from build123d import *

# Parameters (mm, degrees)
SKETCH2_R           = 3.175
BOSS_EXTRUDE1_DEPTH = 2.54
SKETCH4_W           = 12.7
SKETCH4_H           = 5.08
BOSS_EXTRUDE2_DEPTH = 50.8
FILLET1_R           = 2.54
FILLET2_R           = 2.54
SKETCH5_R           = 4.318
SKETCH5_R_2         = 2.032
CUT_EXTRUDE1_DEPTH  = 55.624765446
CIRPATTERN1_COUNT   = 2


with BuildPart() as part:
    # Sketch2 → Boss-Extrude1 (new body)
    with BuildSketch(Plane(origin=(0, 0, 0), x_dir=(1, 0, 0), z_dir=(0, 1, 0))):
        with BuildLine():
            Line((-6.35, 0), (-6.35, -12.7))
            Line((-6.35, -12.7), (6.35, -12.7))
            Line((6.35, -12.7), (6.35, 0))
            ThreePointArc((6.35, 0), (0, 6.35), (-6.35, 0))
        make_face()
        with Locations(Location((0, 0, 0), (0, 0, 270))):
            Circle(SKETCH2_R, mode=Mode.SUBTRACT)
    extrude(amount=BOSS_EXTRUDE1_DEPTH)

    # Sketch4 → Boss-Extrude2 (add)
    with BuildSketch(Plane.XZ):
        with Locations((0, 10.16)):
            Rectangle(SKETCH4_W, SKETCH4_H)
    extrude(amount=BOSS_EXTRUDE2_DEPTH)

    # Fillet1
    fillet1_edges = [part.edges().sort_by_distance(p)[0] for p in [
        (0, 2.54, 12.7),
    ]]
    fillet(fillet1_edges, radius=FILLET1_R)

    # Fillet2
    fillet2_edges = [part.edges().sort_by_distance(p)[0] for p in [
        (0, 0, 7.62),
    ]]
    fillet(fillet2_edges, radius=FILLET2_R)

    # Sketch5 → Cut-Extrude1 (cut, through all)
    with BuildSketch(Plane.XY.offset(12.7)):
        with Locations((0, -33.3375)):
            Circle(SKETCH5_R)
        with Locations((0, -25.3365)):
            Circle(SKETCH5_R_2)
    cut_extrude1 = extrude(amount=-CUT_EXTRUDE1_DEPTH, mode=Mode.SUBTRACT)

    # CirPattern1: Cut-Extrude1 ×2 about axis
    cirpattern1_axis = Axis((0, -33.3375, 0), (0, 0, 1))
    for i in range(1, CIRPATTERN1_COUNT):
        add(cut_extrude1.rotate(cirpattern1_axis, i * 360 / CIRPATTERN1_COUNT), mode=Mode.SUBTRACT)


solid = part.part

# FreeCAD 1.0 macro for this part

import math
import FreeCAD as App
import Part
import Sketcher
Q = App.Units.Quantity


def edges_at(feature, points):
    """Names of the edges that pass closest to the given points."""
    edges = feature.Shape.Edges
    near = lambda p: min(range(len(edges)), key=lambda i: edges[i].distToShape(Part.Vertex(*p))[0])
    return sorted({f"Edge{near(p) + 1}" for p in points})

doc = App.newDocument("Part")
params = doc.addObject("Spreadsheet::Sheet", "Params")
for row, (alias, value) in enumerate([
    ("sketch1_diameter", "0.25 in"),
    ("sketch1_radius", "0.25 in"),
    ("pad1_length", "0.1 in"),
    ("sketch2_width", "0.5 in"),
    ("sketch2_height", "0.2 in"),
    ("pad2_length", "2 in"),
    ("fillet_radius", "0.1 in"),
    ("fillet2_radius", "0.1 in"),
    ("sketch3_diameter", "0.34 in"),
    ("sketch3_diameter2", "0.16 in"),
], start=1):
    params.set(f"A{row}", alias)
    params.set(f"B{row}", "=" + value)
    params.setAlias(f"B{row}", alias)

body = doc.addObject("PartDesign::Body", "Body")

# Sketch on XZ plane
sketch1 = doc.addObject("Sketcher::SketchObject", "Sketch")
body.addObject(sketch1)
sketch1.AttachmentSupport = (doc.XZ_Plane, [""])
sketch1.MapMode = "FlatFace"
sketch1.addGeometry(Part.LineSegment(App.Vector(-6.3, 0, 0), App.Vector(-6.3, 12.7, 0)), False)
sketch1.addGeometry(Part.LineSegment(App.Vector(-6.3, 12.7, 0), App.Vector(6.3, 12.7, 0)), False)
sketch1.addGeometry(Part.LineSegment(App.Vector(6.3, 12.7, 0), App.Vector(6.3, 0, 0)), False)
sketch1.addGeometry(Part.ArcOfCircle(Part.Circle(App.Vector(0, 0, 0), App.Vector(0, 0, 1), 6.3), math.radians(180), math.radians(360)), False)
sketch1.addGeometry(Part.Circle(App.Vector(0, 0, 0), App.Vector(0, 0, 1), 3.2), False)
sketch1.addConstraint(Sketcher.Constraint("Coincident", 0, 2, 1, 1))
sketch1.addConstraint(Sketcher.Constraint("Coincident", 1, 2, 2, 1))
sketch1.addConstraint(Sketcher.Constraint("Tangent", 2, 2, 3, 2))
sketch1.addConstraint(Sketcher.Constraint("Tangent", 3, 1, 0, 1))
sketch1.addConstraint(Sketcher.Constraint("Vertical", 0))
sketch1.addConstraint(Sketcher.Constraint("Horizontal", 1))
sketch1.addConstraint(Sketcher.Constraint("Vertical", 2))
sketch1.addConstraint(Sketcher.Constraint("Coincident", 3, 3, -1, 1))
sketch1.addConstraint(Sketcher.Constraint("Coincident", 4, 3, -1, 1))
sketch1.addConstraint(Sketcher.Constraint("Equal", 1, 0))
sketch1.addConstraint(Sketcher.Constraint("Diameter", 4, Q("0.25 in")))
sketch1.addConstraint(Sketcher.Constraint("Radius", 3, Q("0.25 in")))
sketch1.setExpression("Constraints[10]", "Params.sketch1_diameter")
sketch1.setExpression("Constraints[11]", "Params.sketch1_radius")
pad1 = doc.addObject("PartDesign::Pad", "Pad")
body.addObject(pad1)
pad1.Profile = sketch1
pad1.setExpression("Length", "Params.pad1_length")
pad1.Reversed = True

# Sketch on XZ plane
sketch2 = doc.addObject("Sketcher::SketchObject", "Sketch001")
body.addObject(sketch2)
sketch2.AttachmentSupport = (doc.XZ_Plane, [""])
sketch2.MapMode = "FlatFace"
sketch2.addGeometry(Part.LineSegment(App.Vector(-6, 13, 0), App.Vector(-6, 8, 0)), False)
sketch2.addGeometry(Part.LineSegment(App.Vector(-6, 8, 0), App.Vector(6, 8, 0)), False)
sketch2.addGeometry(Part.LineSegment(App.Vector(6, 8, 0), App.Vector(6, 13, 0)), False)
sketch2.addGeometry(Part.LineSegment(App.Vector(6, 13, 0), App.Vector(-6, 13, 0)), False)
sketch2.addConstraint(Sketcher.Constraint("Coincident", 0, 2, 1, 1))
sketch2.addConstraint(Sketcher.Constraint("Coincident", 1, 2, 2, 1))
sketch2.addConstraint(Sketcher.Constraint("Coincident", 2, 2, 3, 1))
sketch2.addConstraint(Sketcher.Constraint("Coincident", 3, 2, 0, 1))
sketch2.addConstraint(Sketcher.Constraint("Vertical", 0))
sketch2.addConstraint(Sketcher.Constraint("Horizontal", 1))
sketch2.addConstraint(Sketcher.Constraint("Vertical", 2))
sketch2.addConstraint(Sketcher.Constraint("Horizontal", 3))
sketch2.addConstraint(Sketcher.Constraint("DistanceX", 1, 1, 1, 2, Q("0.5 in")))
sketch2.addConstraint(Sketcher.Constraint("DistanceY", 0, 2, 0, 1, Q("0.2 in")))
sketch2.addConstraint(Sketcher.Constraint("DistanceY", -1, 1, 0, 2, Q("0.3 in")))
sketch2.addConstraint(Sketcher.Constraint("DistanceX", 0, 2, -1, 1, Q("0.25 in")))
sketch2.setExpression("Constraints[8]", "Params.sketch2_width")
sketch2.setExpression("Constraints[9]", "Params.sketch2_height")
pad2 = doc.addObject("PartDesign::Pad", "Pad001")
body.addObject(pad2)
pad2.Profile = sketch2
pad2.setExpression("Length", "Params.pad2_length")
doc.recompute()

fillet = doc.addObject("PartDesign::Fillet", "Fillet")
body.addObject(fillet)
fillet.Base = (pad2, edges_at(pad2, [(0, 2.54, 12.7)]))
fillet.setExpression("Radius", "Params.fillet_radius")
doc.recompute()

fillet2 = doc.addObject("PartDesign::Fillet", "Fillet001")
body.addObject(fillet2)
fillet2.Base = (fillet, edges_at(fillet, [(0, 0, 7.62)]))
fillet2.setExpression("Radius", "Params.fillet2_radius")

# Sketch on XY plane
sketch3 = doc.addObject("Sketcher::SketchObject", "Sketch002")
body.addObject(sketch3)
sketch3.AttachmentSupport = (doc.XY_Plane, [""])
sketch3.MapMode = "FlatFace"
sketch3.AttachmentOffset = App.Placement(App.Vector(0, 0, 0.5 * 25.4), App.Rotation())
sketch3.addGeometry(Part.Circle(App.Vector(0, -33.3, 0), App.Vector(0, 0, 1), 4.3), False)
sketch3.addGeometry(Part.Circle(App.Vector(0, -25.3, 0), App.Vector(0, 0, 1), 2), False)
sketch3.addConstraint(Sketcher.Constraint("PointOnObject", 0, 3, -2))
sketch3.addConstraint(Sketcher.Constraint("PointOnObject", 1, 3, -2))
sketch3.addConstraint(Sketcher.Constraint("Diameter", 0, Q("0.34 in")))
sketch3.addConstraint(Sketcher.Constraint("Diameter", 1, Q("0.16 in")))
sketch3.addConstraint(Sketcher.Constraint("DistanceY", 0, 3, -1, 1, Q("1.3125 in")))
sketch3.addConstraint(Sketcher.Constraint("DistanceY", 0, 3, 1, 3, Q("0.315 in")))
sketch3.setExpression("Constraints[2]", "Params.sketch3_diameter")
sketch3.setExpression("Constraints[3]", "Params.sketch3_diameter2")
pocket1 = doc.addObject("PartDesign::Pocket", "Pocket")
body.addObject(pocket1)
pocket1.Profile = sketch3
pocket1.Type = "ThroughAll"
doc.recompute()

datumline = doc.addObject("PartDesign::Line", "DatumLine")
body.addObject(datumline)
datumline.Placement = App.Placement(App.Vector(0, -33.3375, 0), App.Rotation(App.Vector(0, 0, 1), App.Vector(0, 0, 1)))
polarpattern = doc.addObject("PartDesign::PolarPattern", "PolarPattern")
body.addObject(polarpattern)
polarpattern.Originals = [pocket1]
polarpattern.Axis = (datumline, [""])
polarpattern.Angle = 360
polarpattern.Occurrences = 2
body.Tip = polarpattern

doc.recompute()
